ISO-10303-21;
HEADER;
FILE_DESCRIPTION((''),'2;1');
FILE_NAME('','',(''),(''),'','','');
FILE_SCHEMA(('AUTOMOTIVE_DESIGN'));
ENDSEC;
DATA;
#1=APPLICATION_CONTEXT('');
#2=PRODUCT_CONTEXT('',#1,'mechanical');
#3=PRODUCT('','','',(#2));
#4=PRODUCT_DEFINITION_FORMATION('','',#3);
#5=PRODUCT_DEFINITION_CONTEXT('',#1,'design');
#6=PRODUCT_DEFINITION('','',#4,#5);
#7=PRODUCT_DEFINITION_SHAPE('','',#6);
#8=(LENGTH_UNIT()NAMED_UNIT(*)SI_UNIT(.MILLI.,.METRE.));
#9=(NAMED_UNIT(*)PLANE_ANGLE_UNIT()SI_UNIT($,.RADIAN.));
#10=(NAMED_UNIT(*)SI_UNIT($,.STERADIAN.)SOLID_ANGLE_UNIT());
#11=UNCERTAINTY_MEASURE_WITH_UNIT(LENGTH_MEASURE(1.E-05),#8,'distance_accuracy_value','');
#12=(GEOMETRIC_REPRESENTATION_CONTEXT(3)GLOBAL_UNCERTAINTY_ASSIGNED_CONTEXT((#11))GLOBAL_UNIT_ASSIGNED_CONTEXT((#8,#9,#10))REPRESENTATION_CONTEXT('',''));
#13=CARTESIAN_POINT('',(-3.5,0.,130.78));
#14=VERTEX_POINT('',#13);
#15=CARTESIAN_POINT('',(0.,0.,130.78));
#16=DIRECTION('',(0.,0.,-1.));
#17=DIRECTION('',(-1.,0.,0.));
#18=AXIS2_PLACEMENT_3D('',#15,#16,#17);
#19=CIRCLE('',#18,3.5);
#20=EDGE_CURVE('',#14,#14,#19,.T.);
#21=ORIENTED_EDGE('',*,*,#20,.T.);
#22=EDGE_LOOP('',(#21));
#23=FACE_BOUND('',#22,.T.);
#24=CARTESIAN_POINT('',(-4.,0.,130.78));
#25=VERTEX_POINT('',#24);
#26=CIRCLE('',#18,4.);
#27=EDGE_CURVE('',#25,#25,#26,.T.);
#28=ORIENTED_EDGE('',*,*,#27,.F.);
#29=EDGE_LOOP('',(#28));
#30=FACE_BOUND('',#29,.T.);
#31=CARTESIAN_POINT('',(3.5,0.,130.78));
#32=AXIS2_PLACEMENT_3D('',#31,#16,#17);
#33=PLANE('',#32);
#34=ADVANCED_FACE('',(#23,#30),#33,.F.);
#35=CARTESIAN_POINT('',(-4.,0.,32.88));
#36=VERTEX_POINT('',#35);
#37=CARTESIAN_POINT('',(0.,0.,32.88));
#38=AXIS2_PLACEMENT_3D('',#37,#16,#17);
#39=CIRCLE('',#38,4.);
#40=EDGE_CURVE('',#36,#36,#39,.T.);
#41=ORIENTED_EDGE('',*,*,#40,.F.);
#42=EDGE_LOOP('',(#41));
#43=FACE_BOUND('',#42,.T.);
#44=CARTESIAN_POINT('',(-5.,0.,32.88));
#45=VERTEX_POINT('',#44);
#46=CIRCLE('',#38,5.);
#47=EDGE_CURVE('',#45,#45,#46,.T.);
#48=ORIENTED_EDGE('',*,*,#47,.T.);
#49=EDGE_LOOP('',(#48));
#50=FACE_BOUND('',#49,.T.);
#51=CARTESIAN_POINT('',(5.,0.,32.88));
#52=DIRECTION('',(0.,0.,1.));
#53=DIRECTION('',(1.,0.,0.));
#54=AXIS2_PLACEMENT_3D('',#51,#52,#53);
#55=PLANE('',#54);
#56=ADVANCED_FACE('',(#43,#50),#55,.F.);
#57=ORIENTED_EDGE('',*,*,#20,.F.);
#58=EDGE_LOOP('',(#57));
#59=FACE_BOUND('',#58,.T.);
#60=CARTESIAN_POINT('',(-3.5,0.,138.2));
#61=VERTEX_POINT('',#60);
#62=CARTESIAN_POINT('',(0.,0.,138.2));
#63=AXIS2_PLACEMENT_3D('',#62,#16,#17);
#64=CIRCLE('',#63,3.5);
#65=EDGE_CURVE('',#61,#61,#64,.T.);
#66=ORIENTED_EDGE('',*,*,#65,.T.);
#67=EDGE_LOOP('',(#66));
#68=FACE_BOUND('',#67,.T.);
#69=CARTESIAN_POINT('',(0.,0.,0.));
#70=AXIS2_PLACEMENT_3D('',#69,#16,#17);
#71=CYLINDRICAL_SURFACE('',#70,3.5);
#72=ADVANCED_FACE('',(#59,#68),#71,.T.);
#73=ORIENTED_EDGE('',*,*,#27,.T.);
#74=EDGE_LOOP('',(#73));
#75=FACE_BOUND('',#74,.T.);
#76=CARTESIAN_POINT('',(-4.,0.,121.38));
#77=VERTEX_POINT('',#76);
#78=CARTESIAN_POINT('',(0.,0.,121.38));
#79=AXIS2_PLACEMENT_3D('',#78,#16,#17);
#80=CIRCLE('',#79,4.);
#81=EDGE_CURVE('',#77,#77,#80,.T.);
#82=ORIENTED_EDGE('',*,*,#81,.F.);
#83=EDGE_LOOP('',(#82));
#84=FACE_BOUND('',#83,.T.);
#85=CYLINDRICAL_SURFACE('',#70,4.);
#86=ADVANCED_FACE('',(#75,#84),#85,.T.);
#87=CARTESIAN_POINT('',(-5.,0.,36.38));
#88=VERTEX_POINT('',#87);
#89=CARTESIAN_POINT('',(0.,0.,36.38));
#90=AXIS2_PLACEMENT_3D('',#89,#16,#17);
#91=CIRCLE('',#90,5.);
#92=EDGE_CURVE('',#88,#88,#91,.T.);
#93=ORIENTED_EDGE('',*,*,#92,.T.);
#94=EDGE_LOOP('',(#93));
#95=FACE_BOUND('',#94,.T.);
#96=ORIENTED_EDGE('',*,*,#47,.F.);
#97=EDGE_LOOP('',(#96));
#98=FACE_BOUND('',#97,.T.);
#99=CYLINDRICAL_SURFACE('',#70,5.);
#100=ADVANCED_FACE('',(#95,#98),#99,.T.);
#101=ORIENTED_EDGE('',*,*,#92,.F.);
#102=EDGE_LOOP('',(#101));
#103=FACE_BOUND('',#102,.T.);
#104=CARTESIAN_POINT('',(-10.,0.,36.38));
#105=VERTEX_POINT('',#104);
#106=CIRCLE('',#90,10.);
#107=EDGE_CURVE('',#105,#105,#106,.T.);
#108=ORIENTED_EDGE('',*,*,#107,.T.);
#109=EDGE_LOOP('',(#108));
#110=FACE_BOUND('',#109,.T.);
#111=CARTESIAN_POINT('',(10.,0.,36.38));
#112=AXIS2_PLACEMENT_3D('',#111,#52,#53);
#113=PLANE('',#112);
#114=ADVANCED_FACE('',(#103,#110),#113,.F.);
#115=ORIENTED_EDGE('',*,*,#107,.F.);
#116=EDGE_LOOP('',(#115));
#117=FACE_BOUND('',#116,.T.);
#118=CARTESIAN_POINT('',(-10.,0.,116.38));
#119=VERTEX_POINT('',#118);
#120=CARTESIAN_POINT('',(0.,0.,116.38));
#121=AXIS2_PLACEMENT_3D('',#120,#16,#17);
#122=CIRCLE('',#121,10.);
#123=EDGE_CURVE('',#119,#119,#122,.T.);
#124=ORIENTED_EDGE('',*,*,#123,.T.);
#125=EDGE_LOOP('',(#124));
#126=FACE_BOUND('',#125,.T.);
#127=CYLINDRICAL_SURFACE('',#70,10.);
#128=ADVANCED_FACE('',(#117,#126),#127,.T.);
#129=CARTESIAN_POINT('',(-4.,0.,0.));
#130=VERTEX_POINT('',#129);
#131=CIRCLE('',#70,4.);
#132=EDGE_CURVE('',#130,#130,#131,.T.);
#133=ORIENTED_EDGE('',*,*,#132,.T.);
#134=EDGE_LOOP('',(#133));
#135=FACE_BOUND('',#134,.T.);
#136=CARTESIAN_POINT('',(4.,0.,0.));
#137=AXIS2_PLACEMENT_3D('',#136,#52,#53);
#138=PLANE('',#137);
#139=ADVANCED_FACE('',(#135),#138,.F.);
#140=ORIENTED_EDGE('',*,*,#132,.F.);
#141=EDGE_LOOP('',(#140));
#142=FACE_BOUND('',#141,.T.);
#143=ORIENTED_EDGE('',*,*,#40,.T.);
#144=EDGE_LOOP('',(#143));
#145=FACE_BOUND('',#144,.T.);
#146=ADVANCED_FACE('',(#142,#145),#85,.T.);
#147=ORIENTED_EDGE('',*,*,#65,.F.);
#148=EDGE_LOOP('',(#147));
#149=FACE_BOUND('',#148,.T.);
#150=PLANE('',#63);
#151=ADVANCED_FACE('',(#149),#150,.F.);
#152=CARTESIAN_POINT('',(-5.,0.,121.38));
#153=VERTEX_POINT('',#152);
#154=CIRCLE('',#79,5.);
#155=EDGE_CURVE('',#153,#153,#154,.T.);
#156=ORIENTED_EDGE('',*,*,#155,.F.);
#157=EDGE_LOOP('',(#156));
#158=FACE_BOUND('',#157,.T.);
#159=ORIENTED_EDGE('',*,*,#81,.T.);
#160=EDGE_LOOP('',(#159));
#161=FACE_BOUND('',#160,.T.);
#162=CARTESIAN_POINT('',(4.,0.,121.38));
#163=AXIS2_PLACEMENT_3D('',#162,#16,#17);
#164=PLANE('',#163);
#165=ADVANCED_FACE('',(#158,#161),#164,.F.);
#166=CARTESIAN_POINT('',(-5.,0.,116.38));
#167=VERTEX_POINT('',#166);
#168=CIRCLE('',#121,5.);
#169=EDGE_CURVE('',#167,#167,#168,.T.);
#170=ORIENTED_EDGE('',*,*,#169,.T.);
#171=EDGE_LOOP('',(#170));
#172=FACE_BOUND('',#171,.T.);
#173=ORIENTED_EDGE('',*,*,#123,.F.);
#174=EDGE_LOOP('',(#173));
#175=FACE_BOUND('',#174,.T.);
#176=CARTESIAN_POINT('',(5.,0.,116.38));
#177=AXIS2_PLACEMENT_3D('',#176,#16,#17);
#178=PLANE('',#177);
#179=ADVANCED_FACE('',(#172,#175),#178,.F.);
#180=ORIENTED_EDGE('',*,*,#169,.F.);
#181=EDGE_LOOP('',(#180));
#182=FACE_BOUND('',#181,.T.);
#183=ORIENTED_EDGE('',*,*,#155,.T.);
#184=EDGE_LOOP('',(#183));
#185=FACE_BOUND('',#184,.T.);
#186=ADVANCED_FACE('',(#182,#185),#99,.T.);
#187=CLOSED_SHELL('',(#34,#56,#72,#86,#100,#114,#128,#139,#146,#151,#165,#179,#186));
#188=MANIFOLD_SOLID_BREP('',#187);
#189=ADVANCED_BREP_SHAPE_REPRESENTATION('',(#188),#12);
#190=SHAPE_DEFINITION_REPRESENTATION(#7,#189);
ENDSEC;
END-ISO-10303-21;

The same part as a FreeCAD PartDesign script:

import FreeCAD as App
import Part
import Sketcher
Q = App.Units.Quantity

doc = App.newDocument("Part")
body = doc.addObject("PartDesign::Body", "Body")

sketch1 = body.newObject("Sketcher::SketchObject", "Sketch")
sketch1.AttachmentSupport = (doc.getObject("XZ_Plane"), [""])
sketch1.MapMode = "FlatFace"
sketch1.addGeometry(Part.LineSegment(App.Vector(0, 0, 0), App.Vector(0, 138.2, 0)), False)
sketch1.addGeometry(Part.LineSegment(App.Vector(0, 138.2, 0), App.Vector(3.5, 138.2, 0)), False)
sketch1.addGeometry(Part.LineSegment(App.Vector(3.5, 138.2, 0), App.Vector(3.5, 130.8, 0)), False)
sketch1.addGeometry(Part.LineSegment(App.Vector(3.5, 130.8, 0), App.Vector(4, 130.8, 0)), False)
sketch1.addGeometry(Part.LineSegment(App.Vector(4, 130.8, 0), App.Vector(4, 121.4, 0)), False)
sketch1.addGeometry(Part.LineSegment(App.Vector(4, 121.4, 0), App.Vector(5, 121.4, 0)), False)
sketch1.addGeometry(Part.LineSegment(App.Vector(5, 121.4, 0), App.Vector(5, 116.4, 0)), False)
sketch1.addGeometry(Part.LineSegment(App.Vector(5, 116.4, 0), App.Vector(10, 116.4, 0)), False)
sketch1.addGeometry(Part.LineSegment(App.Vector(10, 116.4, 0), App.Vector(10, 36.4, 0)), False)
sketch1.addGeometry(Part.LineSegment(App.Vector(10, 36.4, 0), App.Vector(5, 36.4, 0)), False)
sketch1.addGeometry(Part.LineSegment(App.Vector(5, 36.4, 0), App.Vector(5, 32.9, 0)), False)
sketch1.addGeometry(Part.LineSegment(App.Vector(5, 32.9, 0), App.Vector(4, 32.9, 0)), False)
sketch1.addGeometry(Part.LineSegment(App.Vector(4, 32.9, 0), App.Vector(4, 0, 0)), False)
sketch1.addGeometry(Part.LineSegment(App.Vector(4, 0, 0), App.Vector(0, 0, 0)), False)
sketch1.addConstraint(Sketcher.Constraint("Coincident", 0, 2, 1, 1))
sketch1.addConstraint(Sketcher.Constraint("Coincident", 1, 2, 2, 1))
sketch1.addConstraint(Sketcher.Constraint("Coincident", 2, 2, 3, 1))
sketch1.addConstraint(Sketcher.Constraint("Coincident", 3, 2, 4, 1))
sketch1.addConstraint(Sketcher.Constraint("Coincident", 4, 2, 5, 1))
sketch1.addConstraint(Sketcher.Constraint("Coincident", 5, 2, 6, 1))
sketch1.addConstraint(Sketcher.Constraint("Coincident", 6, 2, 7, 1))
sketch1.addConstraint(Sketcher.Constraint("Coincident", 7, 2, 8, 1))
sketch1.addConstraint(Sketcher.Constraint("Coincident", 8, 2, 9, 1))
sketch1.addConstraint(Sketcher.Constraint("Coincident", 9, 2, 10, 1))
sketch1.addConstraint(Sketcher.Constraint("Coincident", 10, 2, 11, 1))
sketch1.addConstraint(Sketcher.Constraint("Coincident", 11, 2, 12, 1))
sketch1.addConstraint(Sketcher.Constraint("Coincident", 12, 2, 13, 1))
sketch1.addConstraint(Sketcher.Constraint("Coincident", 13, 2, 0, 1))
sketch1.addConstraint(Sketcher.Constraint("Vertical", 0))
sketch1.addConstraint(Sketcher.Constraint("Horizontal", 1))
sketch1.addConstraint(Sketcher.Constraint("Vertical", 2))
sketch1.addConstraint(Sketcher.Constraint("Horizontal", 3))
sketch1.addConstraint(Sketcher.Constraint("Vertical", 4))
sketch1.addConstraint(Sketcher.Constraint("Horizontal", 5))
sketch1.addConstraint(Sketcher.Constraint("Vertical", 6))
sketch1.addConstraint(Sketcher.Constraint("Horizontal", 7))
sketch1.addConstraint(Sketcher.Constraint("Vertical", 8))
sketch1.addConstraint(Sketcher.Constraint("Horizontal", 9))
sketch1.addConstraint(Sketcher.Constraint("Vertical", 10))
sketch1.addConstraint(Sketcher.Constraint("Horizontal", 11))
sketch1.addConstraint(Sketcher.Constraint("Vertical", 12))
sketch1.addConstraint(Sketcher.Constraint("Horizontal", 13))
sketch1.addConstraint(Sketcher.Constraint("Coincident", 13, 2, -1, 1))
sketch1.addConstraint(Sketcher.Constraint("Vertical", 6, 2, 9, 2))
sketch1.addConstraint(Sketcher.Constraint("Vertical", 4, 2, 11, 2))
sketch1.addConstraint(Sketcher.Constraint("Equal", 9, 6))
sketch1.addConstraint(Sketcher.Constraint("Equal", 1, 10))
sketch1.addConstraint(Sketcher.Constraint("DistanceX", 5, 1, 5, 2, Q("1 mm")))
sketch1.addConstraint(Sketcher.Constraint("DistanceX", 7, 1, 7, 2, Q("5 mm")))
sketch1.addConstraint(Sketcher.Constraint("DistanceX", 13, 2, 13, 1, Q("4 mm")))
sketch1.addConstraint(Sketcher.Constraint("DistanceY", 8, 2, 8, 1, Q("80 mm")))
sketch1.addConstraint(Sketcher.Constraint("DistanceX", 1, 1, 1, 2, Q("3.5 mm")))
sketch1.addConstraint(Sketcher.Constraint("DistanceY", 0, 1, 0, 2, Q("138.2 mm")))
sketch1.addConstraint(Sketcher.Constraint("DistanceY", 4, 2, 4, 1, Q("9.4 mm")))
sketch1.addConstraint(Sketcher.Constraint("DistanceY", 2, 2, 2, 1, Q("7.42 mm")))
revolution = body.newObject("PartDesign::Revolution", "Revolution")
revolution.Profile = sketch1
revolution.ReferenceAxis = (sketch1, ["V_Axis"])
revolution.Angle = 360

doc.recompute()
